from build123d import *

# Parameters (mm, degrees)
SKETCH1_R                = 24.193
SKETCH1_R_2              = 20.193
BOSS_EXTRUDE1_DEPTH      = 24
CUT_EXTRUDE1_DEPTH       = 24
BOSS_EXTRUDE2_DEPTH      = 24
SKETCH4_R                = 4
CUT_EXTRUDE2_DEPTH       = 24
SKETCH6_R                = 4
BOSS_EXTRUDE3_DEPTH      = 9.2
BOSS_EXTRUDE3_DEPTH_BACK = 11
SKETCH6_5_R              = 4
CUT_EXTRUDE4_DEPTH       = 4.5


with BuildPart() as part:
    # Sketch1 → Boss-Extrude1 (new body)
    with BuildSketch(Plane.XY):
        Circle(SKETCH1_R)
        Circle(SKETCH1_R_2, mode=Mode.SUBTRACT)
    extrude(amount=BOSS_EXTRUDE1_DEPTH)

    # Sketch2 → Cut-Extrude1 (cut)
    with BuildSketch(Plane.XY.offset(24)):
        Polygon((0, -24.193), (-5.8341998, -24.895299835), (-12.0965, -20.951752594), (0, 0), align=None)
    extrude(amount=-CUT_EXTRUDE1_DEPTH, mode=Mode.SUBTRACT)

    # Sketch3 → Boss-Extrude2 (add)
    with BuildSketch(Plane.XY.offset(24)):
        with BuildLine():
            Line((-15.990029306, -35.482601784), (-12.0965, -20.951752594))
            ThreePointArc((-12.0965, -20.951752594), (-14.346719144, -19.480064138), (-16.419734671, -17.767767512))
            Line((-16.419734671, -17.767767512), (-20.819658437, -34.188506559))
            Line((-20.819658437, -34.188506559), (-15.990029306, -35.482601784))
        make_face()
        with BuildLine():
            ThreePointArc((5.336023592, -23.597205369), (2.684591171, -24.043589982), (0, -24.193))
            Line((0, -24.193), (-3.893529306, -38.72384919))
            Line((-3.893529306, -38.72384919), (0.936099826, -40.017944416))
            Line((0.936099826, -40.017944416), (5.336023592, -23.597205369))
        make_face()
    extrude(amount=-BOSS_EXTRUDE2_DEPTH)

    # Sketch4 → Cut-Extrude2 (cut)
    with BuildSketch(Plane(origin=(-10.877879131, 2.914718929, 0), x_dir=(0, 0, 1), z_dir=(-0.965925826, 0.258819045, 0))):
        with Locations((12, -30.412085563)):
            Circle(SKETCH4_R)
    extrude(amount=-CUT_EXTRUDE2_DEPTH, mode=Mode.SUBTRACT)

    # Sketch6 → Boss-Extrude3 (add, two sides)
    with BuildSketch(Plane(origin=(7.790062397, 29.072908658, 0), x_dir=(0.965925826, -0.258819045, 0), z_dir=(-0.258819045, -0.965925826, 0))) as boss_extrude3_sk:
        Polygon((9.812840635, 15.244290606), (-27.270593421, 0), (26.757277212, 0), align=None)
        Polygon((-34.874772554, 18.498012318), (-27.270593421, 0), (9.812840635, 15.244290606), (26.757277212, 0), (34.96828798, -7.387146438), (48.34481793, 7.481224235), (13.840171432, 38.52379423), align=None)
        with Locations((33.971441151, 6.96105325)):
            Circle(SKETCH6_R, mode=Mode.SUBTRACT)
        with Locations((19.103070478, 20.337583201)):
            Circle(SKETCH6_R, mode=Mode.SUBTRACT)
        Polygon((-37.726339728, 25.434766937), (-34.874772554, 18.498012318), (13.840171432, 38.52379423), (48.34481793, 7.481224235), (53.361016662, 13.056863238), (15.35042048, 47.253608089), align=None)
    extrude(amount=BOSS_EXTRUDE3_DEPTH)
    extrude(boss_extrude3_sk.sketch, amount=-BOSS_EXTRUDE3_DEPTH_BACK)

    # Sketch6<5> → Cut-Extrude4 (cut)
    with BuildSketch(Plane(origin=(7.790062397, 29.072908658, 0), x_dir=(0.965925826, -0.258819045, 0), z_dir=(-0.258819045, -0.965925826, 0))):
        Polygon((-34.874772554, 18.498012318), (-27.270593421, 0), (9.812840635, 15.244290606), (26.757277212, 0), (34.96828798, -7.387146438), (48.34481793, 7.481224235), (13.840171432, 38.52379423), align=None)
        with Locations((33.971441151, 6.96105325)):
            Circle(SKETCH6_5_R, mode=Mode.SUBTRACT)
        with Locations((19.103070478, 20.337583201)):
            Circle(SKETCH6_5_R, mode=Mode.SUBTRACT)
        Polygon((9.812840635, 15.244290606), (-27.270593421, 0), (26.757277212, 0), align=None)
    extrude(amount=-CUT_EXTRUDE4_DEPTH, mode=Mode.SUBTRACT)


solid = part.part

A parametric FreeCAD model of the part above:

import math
import FreeCAD as App
import Part
import Sketcher

V = App.Vector
Q = App.Units.Quantity


def add_polygon(sketch, points):
    """Adds a closed chain of lines whose ends are joined by coincident constraints."""
    first, n = sketch.GeometryCount, len(points)
    for a, b in zip(points, points[1:] + points[:1]):
        sketch.addGeometry(Part.LineSegment(App.Vector(*a, 0), App.Vector(*b, 0)), False)
    for i in range(n):
        sketch.addConstraint(Sketcher.Constraint("Coincident", first + i, 2, first + (i + 1) % n, 1))

doc = App.newDocument("Part")
body = doc.addObject("PartDesign::Body", "Body")

# Sketch on XY plane
sketch1 = body.newObject("Sketcher::SketchObject", "Sketch")
sketch1.AttachmentSupport = (doc.getObject("XY_Plane"), [""])
sketch1.MapMode = "FlatFace"
sketch1.addGeometry([
    Part.Circle(V(0, 0, 0), V(0, 0, 1), 24.193),
    Part.Circle(V(0, 0, 0), V(0, 0, 1), 20.193),
], False)
sketch1.addConstraint([
    Sketcher.Constraint("Coincident", 0, 3, -1, 1),
    Sketcher.Constraint("Coincident", 1, 3, -1, 1),
    Sketcher.Constraint("Diameter", 0, 48.386),
    Sketcher.Constraint("Diameter", 1, 40.386),
])
pad1 = body.newObject("PartDesign::Pad", "Pad")
pad1.Profile = sketch1
pad1.Length = 24

# Sketch on XY plane
sketch2 = body.newObject("Sketcher::SketchObject", "Sketch001")
sketch2.AttachmentSupport = (doc.getObject("XY_Plane"), [""])
sketch2.MapMode = "FlatFace"
sketch2.AttachmentOffset = App.Placement(V(0, 0, 24), App.Rotation())
add_polygon(sketch2, [(-5.8342, -24.8953), (0, -24.193), (0, 0), (-12.0965, -20.951753)])  # lines 0-3
sketch2.addConstraint([
    Sketcher.Constraint("Vertical", 1),
    Sketcher.Constraint("Coincident", 1, 2, -1, 1),
    Sketcher.Constraint("Angle", 2, Q("-120 deg")),
    Sketcher.Constraint("DistanceY", 1, 1, 1, 2, 24.193),
    Sketcher.Constraint("Distance", 2, 24.193),
    Sketcher.Constraint("DistanceX", 3, 2, -1, 1, 5.8342),
    Sketcher.Constraint("DistanceY", 3, 2, -1, 1, 24.8953),
])
pocket1 = body.newObject("PartDesign::Pocket", "Pocket")
pocket1.Profile = sketch2
pocket1.Length = 24

# Sketch on XY plane
sketch3 = body.newObject("Sketcher::SketchObject", "Sketch002")
sketch3.AttachmentSupport = (doc.getObject("XY_Plane"), [""])
sketch3.MapMode = "FlatFace"
sketch3.AttachmentOffset = App.Placement(V(0, 0, 24), App.Rotation())
sketch3.addGeometry([
    Part.LineSegment(V(-15.990029, -35.482602, 0), V(-12.0965, -20.951753, 0)),  # 0
    Part.ArcOfCircle(Part.Circle(V(0, 0, 0), V(0, 0, 1), 24.193), math.radians(-132.741964), math.radians(-120)),  # 1
    Part.LineSegment(V(-16.419735, -17.767768, 0), V(-20.819658, -34.188507, 0)),  # 2
    Part.LineSegment(V(-20.819658, -34.188507, 0), V(-15.990029, -35.482602, 0)),  # 3
    Part.ArcOfCircle(Part.Circle(V(0, 0, 0), V(0, 0, 1), 24.193), math.radians(-90), math.radians(-77.258036)),  # 4
    Part.LineSegment(V(0, -24.193, 0), V(-3.893529, -38.723849, 0)),  # 5
    Part.LineSegment(V(-3.893529, -38.723849, 0), V(0.9361, -40.017944, 0)),  # 6
    Part.LineSegment(V(0.9361, -40.017944, 0), V(5.336024, -23.597205, 0)),  # 7
], False)
sketch3.addConstraint([
    Sketcher.Constraint("Coincident", 0, 2, 1, 2),
    Sketcher.Constraint("Coincident", 1, 1, 2, 1),
    Sketcher.Constraint("Coincident", 2, 2, 3, 1),
    Sketcher.Constraint("Coincident", 3, 2, 0, 1),
    Sketcher.Constraint("Coincident", 4, 1, 5, 1),
    Sketcher.Constraint("Coincident", 5, 2, 6, 1),
    Sketcher.Constraint("Coincident", 6, 2, 7, 1),
    Sketcher.Constraint("Coincident", 7, 2, 4, 2),
    Sketcher.Constraint("Coincident", 1, 3, -1, 1),
    Sketcher.Constraint("Coincident", 4, 3, -1, 1),
    Sketcher.Constraint("Equal", 1, 4),
    Sketcher.Constraint("PointOnObject", 4, 1, -2),
    Sketcher.Constraint("Parallel", 0, 2),
    Sketcher.Constraint("Perpendicular", 2, 3),
    Sketcher.Constraint("Perpendicular", 3, 5),
    Sketcher.Constraint("Perpendicular", 5, 6),
    Sketcher.Constraint("Perpendicular", 6, 7),
    Sketcher.Constraint("Equal", 0, 5),
    Sketcher.Constraint("Equal", 3, 6),
    Sketcher.Constraint("Equal", 2, 7),
    Sketcher.Constraint("Angle", 0, Q("75 deg")),
    Sketcher.Constraint("Distance", 2, 17.0),
    Sketcher.Constraint("Distance", 3, 5.0),
    Sketcher.Constraint("Radius", 1, 24.193),
])
pad2 = body.newObject("PartDesign::Pad", "Pad001")
pad2.Profile = sketch3
pad2.Length = 24
pad2.Reversed = True

# Sketch on an angled plane
sketch4 = body.newObject("Sketcher::SketchObject", "Sketch003")
sketch4.Placement = App.Placement(V(-10.877879, 2.914719, 0), App.Rotation(V(0, 0, 1), V(0.258819045, 0.965925826, 0), V(-0.965925826, 0.258819045, 0), "ZXY"))
sketch4.addGeometry(Part.Circle(V(12, -30.412086, 0), V(0, 0, 1), 4), False)
sketch4.addConstraint([
    Sketcher.Constraint("Diameter", 0, 8.0),
    Sketcher.Constraint("DistanceX", -1, 1, 0, 3, 12.0),
    Sketcher.Constraint("DistanceY", 0, 3, -1, 1, 30.412086),
])
pocket2 = body.newObject("PartDesign::Pocket", "Pocket001")
pocket2.Profile = sketch4
pocket2.Length = 24

# Sketch on an angled plane
sketch5 = body.newObject("Sketcher::SketchObject", "Sketch004")
sketch5.Placement = App.Placement(V(7.790062, 29.072909, 0), App.Rotation(V(0.965925826, -0.258819045, 0), V(0, 0, 0.999999999), V(-0.258819045, -0.965925826, 0), "ZXY"))
add_polygon(sketch5, [(-27.270593, 0), (26.757277, 0), (34.968288, -7.387146), (48.344818, 7.481224), (53.361017, 13.056863), (15.35042, 47.253608), (-37.72634, 25.434767), (-34.874773, 18.498012)])  # lines 0-7
sketch5.addGeometry(Part.Circle(V(33.971441, 6.961053, 0), V(0, 0, 1), 4), False)  # 8
sketch5.addGeometry(Part.Circle(V(19.10307, 20.337583, 0), V(0, 0, 1), 4), False)  # 9
sketch5.addConstraint([
    Sketcher.Constraint("Horizontal", 0),
    Sketcher.Constraint("Equal", 8, 9),
    Sketcher.Constraint("PointOnObject", 0, 2, -1),
    Sketcher.Constraint("Perpendicular", 1, 2),
    Sketcher.Constraint("Parallel", 2, 3),
    Sketcher.Constraint("Perpendicular", 3, 4),
    Sketcher.Constraint("Perpendicular", 5, 6),
    Sketcher.Constraint("Parallel", 6, 7),
    Sketcher.Constraint("Equal", 3, 6),
    Sketcher.Constraint("Equal", 2, 7),
    Sketcher.Constraint("Diameter", 8, 8.0),
    Sketcher.Constraint("Distance", 2, 20.0),
    Sketcher.Constraint("Distance", 3, 7.5),
    Sketcher.Constraint("DistanceX", 0, 1, 0, 2, 54.027871),
    Sketcher.Constraint("DistanceY", 1, 2, 8, 3, 14.3482),
    Sketcher.Constraint("DistanceX", 2, 2, 3, 2, 5.016199),
    Sketcher.Constraint("Distance", 4, 51.129471),
    Sketcher.Constraint("DistanceX", -1, 1, 8, 3, 33.971441),
    Sketcher.Constraint("DistanceX", -1, 1, 9, 3, 19.10307),
    Sketcher.Constraint("DistanceX", -1, 1, 4, 2, 15.35042),
    Sketcher.Constraint("DistanceY", -1, 1, 4, 2, 47.253608),
    Sketcher.Constraint("DistanceY", 8, 3, 9, 3, 13.37653),
])
pad3 = body.newObject("PartDesign::Pad", "Pad002")
pad3.Profile = sketch5
pad3.Type = "TwoLengths"
pad3.Length = 9.2
pad3.Length2 = 11

# Sketch on an angled plane
sketch6 = body.newObject("Sketcher::SketchObject", "Sketch005")
sketch6.Placement = App.Placement(V(7.790062, 29.072909, 0), App.Rotation(V(0.965925826, -0.258819045, 0), V(0, 0, 0.999999999), V(-0.258819045, -0.965925826, 0), "ZXY"))
add_polygon(sketch6, [(-34.874773, 18.498012), (-27.270593, 0), (26.757277, 0), (34.968288, -7.387146), (48.344818, 7.481224), (13.840171, 38.523794)])  # lines 0-5
sketch6.addGeometry(Part.Circle(V(33.971441, 6.961053, 0), V(0, 0, 1), 4), False)  # 6
sketch6.addGeometry(Part.Circle(V(19.10307, 20.337583, 0), V(0, 0, 1), 4), False)  # 7
sketch6.addConstraint([
    Sketcher.Constraint("Horizontal", 1),
    Sketcher.Constraint("Equal", 6, 7),
    Sketcher.Constraint("PointOnObject", 0, 2, -1),
    Sketcher.Constraint("Perpendicular", 2, 3),
    Sketcher.Constraint("Perpendicular", 3, 4),
    Sketcher.Constraint("Perpendicular", 0, 5),
    Sketcher.Constraint("Equal", 0, 3),
    Sketcher.Constraint("Diameter", 6, 8.0),
    Sketcher.Constraint("Distance", 0, 20.0),
    Sketcher.Constraint("DistanceX", 1, 1, 1, 2, 54.027871),
    Sketcher.Constraint("DistanceY", 2, 2, 6, 3, 14.3482),
    Sketcher.Constraint("DistanceX", 4, 2, 7, 3, 5.262899),
    Sketcher.Constraint("DistanceX", -1, 1, 6, 3, 33.971441),
    Sketcher.Constraint("DistanceX", -1, 1, 7, 3, 19.10307),
    Sketcher.Constraint("DistanceY", 6, 3, 7, 3, 13.37653),
    Sketcher.Constraint("DistanceX", 1, 2, 2, 2, 8.211011),
    Sketcher.Constraint("DistanceY", 6, 3, 3, 2, 0.520171),
    Sketcher.Constraint("DistanceY", 7, 3, 4, 2, 18.186211),
])
pocket3 = body.newObject("PartDesign::Pocket", "Pocket002")
pocket3.Profile = sketch6
pocket3.Length = 4.5

doc.recompute()
